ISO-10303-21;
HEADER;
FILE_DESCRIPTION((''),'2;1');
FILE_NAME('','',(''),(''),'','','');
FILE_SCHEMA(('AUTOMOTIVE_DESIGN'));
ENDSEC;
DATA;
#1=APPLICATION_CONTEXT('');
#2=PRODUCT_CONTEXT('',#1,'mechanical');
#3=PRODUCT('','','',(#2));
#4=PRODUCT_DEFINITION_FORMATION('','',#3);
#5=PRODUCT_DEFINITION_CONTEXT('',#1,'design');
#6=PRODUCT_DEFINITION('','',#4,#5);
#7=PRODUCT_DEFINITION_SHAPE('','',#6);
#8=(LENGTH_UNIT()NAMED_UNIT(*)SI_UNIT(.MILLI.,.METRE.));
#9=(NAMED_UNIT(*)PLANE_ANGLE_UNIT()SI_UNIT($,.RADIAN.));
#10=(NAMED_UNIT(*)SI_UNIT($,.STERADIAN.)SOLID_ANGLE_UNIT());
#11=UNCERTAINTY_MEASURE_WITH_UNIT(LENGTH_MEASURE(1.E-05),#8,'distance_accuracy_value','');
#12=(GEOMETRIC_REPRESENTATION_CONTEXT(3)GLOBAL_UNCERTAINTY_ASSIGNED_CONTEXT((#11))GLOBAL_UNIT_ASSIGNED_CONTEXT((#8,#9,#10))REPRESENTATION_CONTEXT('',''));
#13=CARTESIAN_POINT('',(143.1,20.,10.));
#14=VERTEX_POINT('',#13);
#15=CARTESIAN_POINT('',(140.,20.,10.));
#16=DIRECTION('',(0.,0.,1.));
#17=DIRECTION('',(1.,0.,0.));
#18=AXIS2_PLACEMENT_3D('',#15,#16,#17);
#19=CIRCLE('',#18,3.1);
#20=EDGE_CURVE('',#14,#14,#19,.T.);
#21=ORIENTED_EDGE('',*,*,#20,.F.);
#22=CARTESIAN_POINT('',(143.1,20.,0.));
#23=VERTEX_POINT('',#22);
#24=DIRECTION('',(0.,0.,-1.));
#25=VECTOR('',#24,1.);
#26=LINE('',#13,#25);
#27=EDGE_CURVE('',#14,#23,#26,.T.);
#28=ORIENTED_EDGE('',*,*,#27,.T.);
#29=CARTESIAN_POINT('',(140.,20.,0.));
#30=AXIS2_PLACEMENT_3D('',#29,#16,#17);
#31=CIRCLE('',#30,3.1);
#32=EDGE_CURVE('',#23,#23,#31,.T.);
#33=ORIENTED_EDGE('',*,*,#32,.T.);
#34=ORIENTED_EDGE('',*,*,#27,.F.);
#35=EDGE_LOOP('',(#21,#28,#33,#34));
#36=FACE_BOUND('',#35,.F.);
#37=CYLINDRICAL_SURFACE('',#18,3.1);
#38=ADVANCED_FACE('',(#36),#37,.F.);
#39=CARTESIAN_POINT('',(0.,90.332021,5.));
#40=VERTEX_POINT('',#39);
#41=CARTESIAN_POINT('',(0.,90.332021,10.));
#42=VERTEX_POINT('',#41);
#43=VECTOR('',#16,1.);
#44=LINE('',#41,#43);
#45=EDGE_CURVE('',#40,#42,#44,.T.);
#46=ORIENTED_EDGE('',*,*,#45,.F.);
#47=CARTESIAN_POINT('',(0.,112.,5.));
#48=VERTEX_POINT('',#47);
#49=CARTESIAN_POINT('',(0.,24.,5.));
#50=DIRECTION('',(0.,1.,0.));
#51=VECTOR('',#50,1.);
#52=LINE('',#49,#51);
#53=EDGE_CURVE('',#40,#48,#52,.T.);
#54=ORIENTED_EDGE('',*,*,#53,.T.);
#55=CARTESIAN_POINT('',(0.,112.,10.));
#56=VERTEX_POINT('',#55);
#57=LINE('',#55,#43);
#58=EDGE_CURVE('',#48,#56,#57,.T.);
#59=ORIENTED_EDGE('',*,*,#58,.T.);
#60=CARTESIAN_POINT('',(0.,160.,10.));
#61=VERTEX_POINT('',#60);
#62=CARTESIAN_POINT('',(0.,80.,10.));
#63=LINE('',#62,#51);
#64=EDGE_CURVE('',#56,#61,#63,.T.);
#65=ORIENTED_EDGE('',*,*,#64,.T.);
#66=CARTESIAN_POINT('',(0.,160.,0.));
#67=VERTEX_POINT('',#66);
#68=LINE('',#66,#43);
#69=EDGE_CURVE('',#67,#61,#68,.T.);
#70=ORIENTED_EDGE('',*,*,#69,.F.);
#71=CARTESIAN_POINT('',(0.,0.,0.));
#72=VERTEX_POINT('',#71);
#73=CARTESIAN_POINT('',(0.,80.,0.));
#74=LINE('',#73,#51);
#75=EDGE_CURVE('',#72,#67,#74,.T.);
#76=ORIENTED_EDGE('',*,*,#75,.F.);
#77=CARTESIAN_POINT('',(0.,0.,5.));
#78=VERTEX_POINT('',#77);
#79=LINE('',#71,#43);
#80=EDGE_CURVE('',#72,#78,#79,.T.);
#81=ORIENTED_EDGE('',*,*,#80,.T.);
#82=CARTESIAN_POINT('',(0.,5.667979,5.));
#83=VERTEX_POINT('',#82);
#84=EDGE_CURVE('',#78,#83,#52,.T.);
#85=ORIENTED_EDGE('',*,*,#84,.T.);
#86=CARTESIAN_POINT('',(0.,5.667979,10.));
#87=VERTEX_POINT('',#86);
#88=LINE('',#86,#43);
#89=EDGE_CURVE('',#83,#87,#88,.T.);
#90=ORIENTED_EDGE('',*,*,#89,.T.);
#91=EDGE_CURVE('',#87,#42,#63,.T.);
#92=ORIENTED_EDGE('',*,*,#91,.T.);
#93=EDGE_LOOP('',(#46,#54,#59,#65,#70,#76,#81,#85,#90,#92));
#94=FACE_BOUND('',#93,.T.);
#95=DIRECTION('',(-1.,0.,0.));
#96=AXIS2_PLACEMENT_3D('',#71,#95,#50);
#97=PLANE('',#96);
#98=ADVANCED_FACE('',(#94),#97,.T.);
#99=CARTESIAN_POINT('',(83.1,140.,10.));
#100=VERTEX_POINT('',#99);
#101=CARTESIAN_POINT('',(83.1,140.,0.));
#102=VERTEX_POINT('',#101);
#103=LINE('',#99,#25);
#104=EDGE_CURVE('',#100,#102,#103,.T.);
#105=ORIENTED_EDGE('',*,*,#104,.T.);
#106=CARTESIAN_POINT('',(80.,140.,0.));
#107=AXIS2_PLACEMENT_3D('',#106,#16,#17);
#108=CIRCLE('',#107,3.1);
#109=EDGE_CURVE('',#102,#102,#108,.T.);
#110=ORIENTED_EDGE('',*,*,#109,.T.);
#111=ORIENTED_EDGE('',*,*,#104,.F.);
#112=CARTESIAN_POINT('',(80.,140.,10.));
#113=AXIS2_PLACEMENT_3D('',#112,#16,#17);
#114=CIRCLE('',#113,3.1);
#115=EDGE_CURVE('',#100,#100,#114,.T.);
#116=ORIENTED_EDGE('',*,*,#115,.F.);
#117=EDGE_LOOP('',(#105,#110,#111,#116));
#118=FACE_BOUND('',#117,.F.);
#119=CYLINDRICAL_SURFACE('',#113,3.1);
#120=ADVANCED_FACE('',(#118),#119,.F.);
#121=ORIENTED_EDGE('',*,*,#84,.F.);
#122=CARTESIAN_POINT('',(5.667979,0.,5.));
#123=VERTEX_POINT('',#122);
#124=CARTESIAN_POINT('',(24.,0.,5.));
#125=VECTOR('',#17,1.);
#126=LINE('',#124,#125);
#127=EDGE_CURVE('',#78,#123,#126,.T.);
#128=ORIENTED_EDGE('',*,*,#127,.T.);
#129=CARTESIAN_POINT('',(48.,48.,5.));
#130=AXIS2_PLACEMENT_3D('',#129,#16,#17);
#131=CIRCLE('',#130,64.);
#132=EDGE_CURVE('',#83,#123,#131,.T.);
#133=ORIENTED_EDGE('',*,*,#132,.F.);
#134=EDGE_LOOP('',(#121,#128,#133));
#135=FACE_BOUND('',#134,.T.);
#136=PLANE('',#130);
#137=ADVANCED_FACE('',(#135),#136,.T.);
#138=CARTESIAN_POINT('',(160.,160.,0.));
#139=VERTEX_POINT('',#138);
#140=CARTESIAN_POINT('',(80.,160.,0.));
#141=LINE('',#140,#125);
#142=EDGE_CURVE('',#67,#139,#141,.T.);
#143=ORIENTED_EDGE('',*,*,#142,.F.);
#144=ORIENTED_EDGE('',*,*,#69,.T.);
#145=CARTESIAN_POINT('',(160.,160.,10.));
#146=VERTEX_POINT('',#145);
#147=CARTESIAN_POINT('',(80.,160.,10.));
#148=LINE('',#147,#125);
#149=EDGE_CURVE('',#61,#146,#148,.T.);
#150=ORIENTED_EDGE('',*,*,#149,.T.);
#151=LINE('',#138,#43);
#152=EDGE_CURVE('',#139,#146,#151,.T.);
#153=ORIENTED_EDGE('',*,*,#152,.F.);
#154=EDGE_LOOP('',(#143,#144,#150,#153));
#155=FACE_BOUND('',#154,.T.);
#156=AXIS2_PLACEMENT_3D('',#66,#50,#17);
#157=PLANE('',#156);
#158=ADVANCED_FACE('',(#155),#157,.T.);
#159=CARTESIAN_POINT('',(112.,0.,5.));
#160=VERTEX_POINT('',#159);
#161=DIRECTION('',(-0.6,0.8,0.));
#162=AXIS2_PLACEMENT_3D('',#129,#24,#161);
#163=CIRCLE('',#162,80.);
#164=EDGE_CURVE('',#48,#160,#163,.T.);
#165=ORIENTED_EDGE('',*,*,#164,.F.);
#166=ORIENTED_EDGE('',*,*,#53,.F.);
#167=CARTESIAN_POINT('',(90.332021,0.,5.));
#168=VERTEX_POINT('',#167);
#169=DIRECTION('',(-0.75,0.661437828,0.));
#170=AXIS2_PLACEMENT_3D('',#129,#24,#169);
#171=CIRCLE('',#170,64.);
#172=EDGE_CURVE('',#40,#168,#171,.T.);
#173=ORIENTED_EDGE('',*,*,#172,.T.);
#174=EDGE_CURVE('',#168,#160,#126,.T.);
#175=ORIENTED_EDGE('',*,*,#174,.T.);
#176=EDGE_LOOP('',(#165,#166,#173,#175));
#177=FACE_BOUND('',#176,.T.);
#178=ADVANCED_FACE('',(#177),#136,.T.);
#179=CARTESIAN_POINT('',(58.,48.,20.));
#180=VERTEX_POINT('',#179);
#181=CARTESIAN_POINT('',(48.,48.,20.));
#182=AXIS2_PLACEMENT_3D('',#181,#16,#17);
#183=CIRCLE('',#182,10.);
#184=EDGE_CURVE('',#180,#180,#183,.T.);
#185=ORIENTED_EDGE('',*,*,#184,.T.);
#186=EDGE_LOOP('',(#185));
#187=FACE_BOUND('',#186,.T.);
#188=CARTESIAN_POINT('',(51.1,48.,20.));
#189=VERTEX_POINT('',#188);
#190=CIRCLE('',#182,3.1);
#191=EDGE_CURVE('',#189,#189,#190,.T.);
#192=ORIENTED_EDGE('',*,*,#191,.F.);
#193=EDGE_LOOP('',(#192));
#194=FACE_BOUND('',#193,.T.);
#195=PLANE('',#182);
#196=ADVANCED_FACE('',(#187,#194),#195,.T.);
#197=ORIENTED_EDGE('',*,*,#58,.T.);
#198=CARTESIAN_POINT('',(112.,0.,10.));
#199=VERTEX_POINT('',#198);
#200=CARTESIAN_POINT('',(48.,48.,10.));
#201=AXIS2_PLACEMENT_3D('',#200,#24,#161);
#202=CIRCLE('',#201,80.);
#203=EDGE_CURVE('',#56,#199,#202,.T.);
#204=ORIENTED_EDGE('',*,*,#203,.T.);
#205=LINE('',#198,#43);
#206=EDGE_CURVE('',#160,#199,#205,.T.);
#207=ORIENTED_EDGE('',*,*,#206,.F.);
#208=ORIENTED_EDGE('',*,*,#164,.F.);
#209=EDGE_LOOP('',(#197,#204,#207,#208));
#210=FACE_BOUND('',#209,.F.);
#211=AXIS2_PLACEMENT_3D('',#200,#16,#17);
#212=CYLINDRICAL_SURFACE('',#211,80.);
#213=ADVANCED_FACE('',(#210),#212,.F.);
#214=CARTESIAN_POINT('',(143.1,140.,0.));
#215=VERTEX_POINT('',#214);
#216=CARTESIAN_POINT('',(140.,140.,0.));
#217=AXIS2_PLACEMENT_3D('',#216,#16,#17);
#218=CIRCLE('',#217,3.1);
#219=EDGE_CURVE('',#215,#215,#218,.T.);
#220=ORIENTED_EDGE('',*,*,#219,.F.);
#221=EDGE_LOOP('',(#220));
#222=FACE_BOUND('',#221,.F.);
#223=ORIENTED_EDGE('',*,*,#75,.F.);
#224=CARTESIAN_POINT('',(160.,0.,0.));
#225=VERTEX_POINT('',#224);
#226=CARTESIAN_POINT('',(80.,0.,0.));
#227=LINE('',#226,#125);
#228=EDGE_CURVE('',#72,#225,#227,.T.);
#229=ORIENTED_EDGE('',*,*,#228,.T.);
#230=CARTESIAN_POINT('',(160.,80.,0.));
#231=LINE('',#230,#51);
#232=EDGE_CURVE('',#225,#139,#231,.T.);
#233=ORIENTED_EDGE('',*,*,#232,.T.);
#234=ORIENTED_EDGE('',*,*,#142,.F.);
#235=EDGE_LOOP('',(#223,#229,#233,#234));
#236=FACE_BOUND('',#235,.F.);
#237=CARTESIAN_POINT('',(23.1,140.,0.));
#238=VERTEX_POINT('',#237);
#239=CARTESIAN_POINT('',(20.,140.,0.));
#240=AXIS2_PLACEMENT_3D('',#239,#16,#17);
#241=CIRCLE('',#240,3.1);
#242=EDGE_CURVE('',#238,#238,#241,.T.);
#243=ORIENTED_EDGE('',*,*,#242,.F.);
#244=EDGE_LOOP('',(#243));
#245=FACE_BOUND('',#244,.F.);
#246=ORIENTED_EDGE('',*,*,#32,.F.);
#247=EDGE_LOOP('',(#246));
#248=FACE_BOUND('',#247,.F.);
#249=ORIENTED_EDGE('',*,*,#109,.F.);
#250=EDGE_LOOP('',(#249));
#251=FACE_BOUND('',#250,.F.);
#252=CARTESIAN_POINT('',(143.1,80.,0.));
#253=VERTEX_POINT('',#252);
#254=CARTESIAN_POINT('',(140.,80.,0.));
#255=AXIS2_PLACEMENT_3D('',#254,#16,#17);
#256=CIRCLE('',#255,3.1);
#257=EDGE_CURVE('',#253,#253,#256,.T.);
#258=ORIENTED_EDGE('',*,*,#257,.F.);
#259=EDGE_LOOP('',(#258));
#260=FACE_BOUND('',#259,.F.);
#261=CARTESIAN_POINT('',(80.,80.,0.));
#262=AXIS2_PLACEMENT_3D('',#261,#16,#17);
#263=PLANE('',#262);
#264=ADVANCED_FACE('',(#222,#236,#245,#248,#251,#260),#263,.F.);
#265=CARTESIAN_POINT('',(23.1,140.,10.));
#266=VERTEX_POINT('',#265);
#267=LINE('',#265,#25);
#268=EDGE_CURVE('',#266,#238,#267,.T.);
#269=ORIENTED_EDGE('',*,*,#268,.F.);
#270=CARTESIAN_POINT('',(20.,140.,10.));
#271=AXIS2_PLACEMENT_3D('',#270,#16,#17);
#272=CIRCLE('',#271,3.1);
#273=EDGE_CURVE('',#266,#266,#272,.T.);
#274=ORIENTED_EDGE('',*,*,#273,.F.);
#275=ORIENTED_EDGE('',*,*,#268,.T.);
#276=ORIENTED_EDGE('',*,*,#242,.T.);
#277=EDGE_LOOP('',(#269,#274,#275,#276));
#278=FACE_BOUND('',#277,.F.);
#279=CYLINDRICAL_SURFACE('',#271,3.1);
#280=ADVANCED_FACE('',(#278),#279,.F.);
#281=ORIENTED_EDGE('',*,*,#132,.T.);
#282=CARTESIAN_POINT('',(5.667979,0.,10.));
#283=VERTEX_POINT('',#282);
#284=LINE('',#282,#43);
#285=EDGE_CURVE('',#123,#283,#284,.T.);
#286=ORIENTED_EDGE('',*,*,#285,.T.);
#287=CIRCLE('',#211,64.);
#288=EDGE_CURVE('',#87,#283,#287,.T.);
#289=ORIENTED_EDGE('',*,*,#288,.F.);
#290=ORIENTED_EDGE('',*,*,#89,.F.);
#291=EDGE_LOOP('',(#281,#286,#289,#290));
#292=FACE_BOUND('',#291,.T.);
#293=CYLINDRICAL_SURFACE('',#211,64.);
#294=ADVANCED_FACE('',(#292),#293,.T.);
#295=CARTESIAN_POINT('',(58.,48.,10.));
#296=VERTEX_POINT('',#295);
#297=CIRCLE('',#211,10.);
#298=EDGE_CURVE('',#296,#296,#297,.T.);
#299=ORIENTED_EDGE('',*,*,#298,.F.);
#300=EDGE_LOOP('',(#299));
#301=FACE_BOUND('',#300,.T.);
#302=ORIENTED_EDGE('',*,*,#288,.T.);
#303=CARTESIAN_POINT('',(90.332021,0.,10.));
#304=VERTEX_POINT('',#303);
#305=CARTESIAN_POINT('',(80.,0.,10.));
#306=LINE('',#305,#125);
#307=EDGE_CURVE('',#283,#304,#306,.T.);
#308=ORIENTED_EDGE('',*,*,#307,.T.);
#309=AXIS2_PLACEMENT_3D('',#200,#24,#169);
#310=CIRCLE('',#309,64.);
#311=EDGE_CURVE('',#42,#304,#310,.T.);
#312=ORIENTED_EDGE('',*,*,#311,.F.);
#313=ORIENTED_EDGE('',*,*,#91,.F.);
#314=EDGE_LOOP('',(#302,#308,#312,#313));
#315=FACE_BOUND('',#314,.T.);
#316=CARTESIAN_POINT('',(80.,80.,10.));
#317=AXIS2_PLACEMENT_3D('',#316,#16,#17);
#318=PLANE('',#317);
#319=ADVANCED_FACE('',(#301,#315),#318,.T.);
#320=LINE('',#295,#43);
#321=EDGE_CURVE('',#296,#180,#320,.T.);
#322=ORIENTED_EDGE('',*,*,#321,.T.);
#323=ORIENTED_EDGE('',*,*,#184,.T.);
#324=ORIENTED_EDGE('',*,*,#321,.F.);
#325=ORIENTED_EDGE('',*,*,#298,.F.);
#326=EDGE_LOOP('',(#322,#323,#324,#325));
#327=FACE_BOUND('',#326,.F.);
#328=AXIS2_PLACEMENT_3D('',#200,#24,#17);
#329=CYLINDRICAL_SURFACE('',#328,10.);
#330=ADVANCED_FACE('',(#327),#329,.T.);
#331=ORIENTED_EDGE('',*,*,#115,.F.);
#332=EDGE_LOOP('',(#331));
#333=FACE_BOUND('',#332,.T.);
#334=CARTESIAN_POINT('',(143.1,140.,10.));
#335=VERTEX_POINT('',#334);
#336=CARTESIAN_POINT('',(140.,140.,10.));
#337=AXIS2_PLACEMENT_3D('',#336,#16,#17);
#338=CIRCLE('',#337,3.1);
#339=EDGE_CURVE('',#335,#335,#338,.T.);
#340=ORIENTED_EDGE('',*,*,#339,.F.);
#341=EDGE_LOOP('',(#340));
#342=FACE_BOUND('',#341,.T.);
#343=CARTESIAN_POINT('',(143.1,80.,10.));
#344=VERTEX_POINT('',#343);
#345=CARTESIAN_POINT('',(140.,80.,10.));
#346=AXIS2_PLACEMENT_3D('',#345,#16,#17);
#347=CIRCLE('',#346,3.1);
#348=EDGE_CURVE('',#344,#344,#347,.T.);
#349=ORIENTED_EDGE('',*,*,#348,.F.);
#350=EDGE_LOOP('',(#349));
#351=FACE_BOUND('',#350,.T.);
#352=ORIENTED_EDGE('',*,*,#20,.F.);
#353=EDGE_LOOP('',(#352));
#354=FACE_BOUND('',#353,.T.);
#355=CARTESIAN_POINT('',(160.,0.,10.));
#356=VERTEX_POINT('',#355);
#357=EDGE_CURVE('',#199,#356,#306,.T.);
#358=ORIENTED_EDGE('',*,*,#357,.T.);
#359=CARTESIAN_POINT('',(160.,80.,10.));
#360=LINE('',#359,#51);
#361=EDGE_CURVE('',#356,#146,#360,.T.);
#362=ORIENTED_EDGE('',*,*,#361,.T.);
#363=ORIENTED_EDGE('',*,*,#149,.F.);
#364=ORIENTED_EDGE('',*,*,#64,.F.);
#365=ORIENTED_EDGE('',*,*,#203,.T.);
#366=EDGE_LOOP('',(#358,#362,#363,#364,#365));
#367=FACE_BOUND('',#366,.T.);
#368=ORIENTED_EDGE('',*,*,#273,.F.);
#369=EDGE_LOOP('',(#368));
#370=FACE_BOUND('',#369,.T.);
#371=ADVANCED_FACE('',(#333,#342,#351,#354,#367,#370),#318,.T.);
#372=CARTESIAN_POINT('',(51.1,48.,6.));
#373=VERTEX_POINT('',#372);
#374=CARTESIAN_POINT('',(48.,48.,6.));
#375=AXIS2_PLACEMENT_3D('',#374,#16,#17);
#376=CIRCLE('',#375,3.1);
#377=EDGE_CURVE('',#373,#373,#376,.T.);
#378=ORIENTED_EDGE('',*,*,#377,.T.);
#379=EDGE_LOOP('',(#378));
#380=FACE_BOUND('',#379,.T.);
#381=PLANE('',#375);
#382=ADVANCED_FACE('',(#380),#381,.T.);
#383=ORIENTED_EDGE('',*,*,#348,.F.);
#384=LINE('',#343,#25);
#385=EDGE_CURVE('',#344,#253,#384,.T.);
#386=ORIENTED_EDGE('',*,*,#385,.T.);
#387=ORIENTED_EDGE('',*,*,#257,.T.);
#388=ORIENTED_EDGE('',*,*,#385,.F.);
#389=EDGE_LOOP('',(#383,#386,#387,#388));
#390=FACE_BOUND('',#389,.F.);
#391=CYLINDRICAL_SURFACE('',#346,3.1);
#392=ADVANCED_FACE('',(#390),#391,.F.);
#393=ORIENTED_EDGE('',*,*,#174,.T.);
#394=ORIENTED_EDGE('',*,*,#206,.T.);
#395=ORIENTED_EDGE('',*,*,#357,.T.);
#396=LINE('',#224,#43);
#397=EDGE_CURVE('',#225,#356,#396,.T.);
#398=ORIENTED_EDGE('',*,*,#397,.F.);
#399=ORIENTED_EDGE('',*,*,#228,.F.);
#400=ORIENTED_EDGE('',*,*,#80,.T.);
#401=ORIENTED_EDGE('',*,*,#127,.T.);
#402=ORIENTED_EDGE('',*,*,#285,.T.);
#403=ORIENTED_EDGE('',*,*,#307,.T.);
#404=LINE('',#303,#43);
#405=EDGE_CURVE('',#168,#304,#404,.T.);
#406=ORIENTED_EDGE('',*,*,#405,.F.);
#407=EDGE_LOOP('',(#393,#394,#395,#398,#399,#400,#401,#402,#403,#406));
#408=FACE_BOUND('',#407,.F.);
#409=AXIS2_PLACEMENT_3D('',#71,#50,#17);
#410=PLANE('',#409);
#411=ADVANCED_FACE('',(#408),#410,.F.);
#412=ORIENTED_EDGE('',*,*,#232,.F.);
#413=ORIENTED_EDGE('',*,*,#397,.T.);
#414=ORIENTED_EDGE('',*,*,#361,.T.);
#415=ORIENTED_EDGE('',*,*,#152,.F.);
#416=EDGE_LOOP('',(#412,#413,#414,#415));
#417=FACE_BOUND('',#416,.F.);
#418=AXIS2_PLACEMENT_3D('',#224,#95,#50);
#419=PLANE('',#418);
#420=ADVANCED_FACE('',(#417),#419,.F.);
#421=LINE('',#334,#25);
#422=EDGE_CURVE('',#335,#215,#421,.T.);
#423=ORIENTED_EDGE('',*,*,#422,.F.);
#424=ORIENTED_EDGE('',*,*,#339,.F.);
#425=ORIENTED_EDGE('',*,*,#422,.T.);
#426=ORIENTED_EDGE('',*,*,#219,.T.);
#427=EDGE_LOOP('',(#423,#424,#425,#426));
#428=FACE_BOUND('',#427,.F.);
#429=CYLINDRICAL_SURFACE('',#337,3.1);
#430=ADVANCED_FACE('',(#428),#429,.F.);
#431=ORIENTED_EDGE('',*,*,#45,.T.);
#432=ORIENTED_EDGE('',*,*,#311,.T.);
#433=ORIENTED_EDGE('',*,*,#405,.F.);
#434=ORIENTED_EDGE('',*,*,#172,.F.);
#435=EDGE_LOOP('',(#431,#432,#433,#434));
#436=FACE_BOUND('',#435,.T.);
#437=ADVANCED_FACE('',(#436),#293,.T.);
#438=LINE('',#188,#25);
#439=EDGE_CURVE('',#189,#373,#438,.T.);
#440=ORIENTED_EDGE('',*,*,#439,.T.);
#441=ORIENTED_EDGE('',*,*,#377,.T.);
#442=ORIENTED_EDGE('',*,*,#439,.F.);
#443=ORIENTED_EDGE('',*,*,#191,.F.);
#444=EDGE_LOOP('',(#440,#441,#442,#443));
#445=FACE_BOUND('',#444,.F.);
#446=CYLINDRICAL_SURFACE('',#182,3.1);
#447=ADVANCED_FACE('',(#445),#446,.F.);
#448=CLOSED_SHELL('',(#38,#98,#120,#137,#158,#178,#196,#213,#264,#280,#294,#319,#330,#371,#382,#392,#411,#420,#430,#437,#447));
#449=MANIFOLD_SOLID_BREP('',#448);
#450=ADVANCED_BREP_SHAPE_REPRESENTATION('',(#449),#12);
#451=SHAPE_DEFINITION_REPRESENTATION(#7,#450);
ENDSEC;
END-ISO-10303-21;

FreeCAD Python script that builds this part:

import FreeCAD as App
import Part
import Sketcher
Q = App.Units.Quantity

doc = App.newDocument("Part")
body = doc.addObject("PartDesign::Body", "Body")

# Sketch on XY plane
sketch1 = body.newObject("Sketcher::SketchObject", "Sketch")
sketch1.AttachmentSupport = (doc.getObject("XY_Plane"), [""])
sketch1.MapMode = "FlatFace"
sketch1.addGeometry(Part.LineSegment(App.Vector(0, 160, 0), App.Vector(0, 0, 0)), False)
sketch1.addGeometry(Part.LineSegment(App.Vector(0, 0, 0), App.Vector(160, 0, 0)), False)
sketch1.addGeometry(Part.LineSegment(App.Vector(160, 0, 0), App.Vector(160, 160, 0)), False)
sketch1.addGeometry(Part.LineSegment(App.Vector(160, 160, 0), App.Vector(0, 160, 0)), False)
sketch1.addConstraint(Sketcher.Constraint("Coincident", 0, 2, 1, 1))
sketch1.addConstraint(Sketcher.Constraint("Coincident", 1, 2, 2, 1))
sketch1.addConstraint(Sketcher.Constraint("Coincident", 2, 2, 3, 1))
sketch1.addConstraint(Sketcher.Constraint("Coincident", 3, 2, 0, 1))
sketch1.addConstraint(Sketcher.Constraint("Vertical", 0))
sketch1.addConstraint(Sketcher.Constraint("Horizontal", 1))
sketch1.addConstraint(Sketcher.Constraint("Vertical", 2))
sketch1.addConstraint(Sketcher.Constraint("Horizontal", 3))
sketch1.addConstraint(Sketcher.Constraint("Coincident", 0, 2, -1, 1))
sketch1.addConstraint(Sketcher.Constraint("Equal", 3, 0))
sketch1.addConstraint(Sketcher.Constraint("DistanceX", 1, 1, 1, 2, Q("160 mm")))
pad1 = body.newObject("PartDesign::Pad", "Pad")
pad1.Profile = sketch1
pad1.Length = 10

# Sketch on XY plane
sketch2 = body.newObject("Sketcher::SketchObject", "Sketch001")
sketch2.AttachmentSupport = (doc.getObject("XY_Plane"), [""])
sketch2.MapMode = "FlatFace"
sketch2.AttachmentOffset = App.Placement(App.Vector(0, 0, 10), App.Rotation())
sketch2.addGeometry(Part.Circle(App.Vector(48, 48, 0), App.Vector(0, 0, 1), 80), False)
sketch2.addGeometry(Part.Circle(App.Vector(48, 48, 0), App.Vector(0, 0, 1), 64), False)
sketch2.addConstraint(Sketcher.Constraint("Coincident", 1, 3, 0, 3))
sketch2.addConstraint(Sketcher.Constraint("Diameter", 0, Q("160 mm")))
sketch2.addConstraint(Sketcher.Constraint("Diameter", 1, Q("128 mm")))
sketch2.addConstraint(Sketcher.Constraint("DistanceX", -1, 1, 0, 3, Q("48 mm")))
sketch2.addConstraint(Sketcher.Constraint("DistanceY", -1, 1, 0, 3, Q("48 mm")))
pocket1 = body.newObject("PartDesign::Pocket", "Pocket")
pocket1.Profile = sketch2
pocket1.Length = 5

# Sketch on XY plane
sketch3 = body.newObject("Sketcher::SketchObject", "Sketch002")
sketch3.AttachmentSupport = (doc.getObject("XY_Plane"), [""])
sketch3.MapMode = "FlatFace"
sketch3.AttachmentOffset = App.Placement(App.Vector(0, 0, 10), App.Rotation())
sketch3.addGeometry(Part.Circle(App.Vector(20, 140, 0), App.Vector(0, 0, 1), 3.1), False)
sketch3.addGeometry(Part.Circle(App.Vector(80, 140, 0), App.Vector(0, 0, 1), 3.1), False)
sketch3.addGeometry(Part.Circle(App.Vector(140, 140, 0), App.Vector(0, 0, 1), 3.1), False)
sketch3.addGeometry(Part.Circle(App.Vector(140, 80, 0), App.Vector(0, 0, 1), 3.1), False)
sketch3.addGeometry(Part.Circle(App.Vector(140, 20, 0), App.Vector(0, 0, 1), 3.1), False)
sketch3.addConstraint(Sketcher.Constraint("Equal", 0, 1))
sketch3.addConstraint(Sketcher.Constraint("Equal", 1, 2))
sketch3.addConstraint(Sketcher.Constraint("Equal", 2, 3))
sketch3.addConstraint(Sketcher.Constraint("Equal", 3, 4))
sketch3.addConstraint(Sketcher.Constraint("Horizontal", 0, 3, 1, 3))
sketch3.addConstraint(Sketcher.Constraint("Horizontal", 1, 3, 2, 3))
sketch3.addConstraint(Sketcher.Constraint("Vertical", 2, 3, 3, 3))
sketch3.addConstraint(Sketcher.Constraint("Vertical", 3, 3, 4, 3))
sketch3.addConstraint(Sketcher.Constraint("Diameter", 0, Q("6.2 mm")))
sketch3.addConstraint(Sketcher.Constraint("DistanceX", -1, 1, 0, 3, Q("20 mm")))
sketch3.addConstraint(Sketcher.Constraint("DistanceY", -1, 1, 0, 3, Q("140 mm")))
sketch3.addConstraint(Sketcher.Constraint("DistanceX", -1, 1, 1, 3, Q("80 mm")))
sketch3.addConstraint(Sketcher.Constraint("DistanceX", -1, 1, 2, 3, Q("140 mm")))
sketch3.addConstraint(Sketcher.Constraint("DistanceY", -1, 1, 3, 3, Q("80 mm")))
sketch3.addConstraint(Sketcher.Constraint("DistanceY", -1, 1, 4, 3, Q("20 mm")))
pocket2 = body.newObject("PartDesign::Pocket", "Pocket001")
pocket2.Profile = sketch3
pocket2.Length = 10

# Sketch on XY plane
sketch4 = body.newObject("Sketcher::SketchObject", "Sketch003")
sketch4.AttachmentSupport = (doc.getObject("XY_Plane"), [""])
sketch4.MapMode = "FlatFace"
sketch4.AttachmentOffset = App.Placement(App.Vector(0, 0, 10), App.Rotation())
sketch4.addGeometry(Part.Circle(App.Vector(48, 48, 0), App.Vector(0, 0, 1), 10), False)
sketch4.addConstraint(Sketcher.Constraint("Diameter", 0, Q("20 mm")))
sketch4.addConstraint(Sketcher.Constraint("DistanceX", -1, 1, 0, 3, Q("48 mm")))
sketch4.addConstraint(Sketcher.Constraint("DistanceY", -1, 1, 0, 3, Q("48 mm")))
pad2 = body.newObject("PartDesign::Pad", "Pad001")
pad2.Profile = sketch4
pad2.Length = 10

# Sketch on XY plane
sketch5 = body.newObject("Sketcher::SketchObject", "Sketch004")
sketch5.AttachmentSupport = (doc.getObject("XY_Plane"), [""])
sketch5.MapMode = "FlatFace"
sketch5.AttachmentOffset = App.Placement(App.Vector(0, 0, 20), App.Rotation())
sketch5.addGeometry(Part.Circle(App.Vector(48, 48, 0), App.Vector(0, 0, 1), 3.1), False)
sketch5.addConstraint(Sketcher.Constraint("Diameter", 0, Q("6.2 mm")))
sketch5.addConstraint(Sketcher.Constraint("DistanceX", -1, 1, 0, 3, Q("48 mm")))
sketch5.addConstraint(Sketcher.Constraint("DistanceY", -1, 1, 0, 3, Q("48 mm")))
pocket3 = body.newObject("PartDesign::Pocket", "Pocket002")
pocket3.Profile = sketch5
pocket3.Length = 14

doc.recompute()
